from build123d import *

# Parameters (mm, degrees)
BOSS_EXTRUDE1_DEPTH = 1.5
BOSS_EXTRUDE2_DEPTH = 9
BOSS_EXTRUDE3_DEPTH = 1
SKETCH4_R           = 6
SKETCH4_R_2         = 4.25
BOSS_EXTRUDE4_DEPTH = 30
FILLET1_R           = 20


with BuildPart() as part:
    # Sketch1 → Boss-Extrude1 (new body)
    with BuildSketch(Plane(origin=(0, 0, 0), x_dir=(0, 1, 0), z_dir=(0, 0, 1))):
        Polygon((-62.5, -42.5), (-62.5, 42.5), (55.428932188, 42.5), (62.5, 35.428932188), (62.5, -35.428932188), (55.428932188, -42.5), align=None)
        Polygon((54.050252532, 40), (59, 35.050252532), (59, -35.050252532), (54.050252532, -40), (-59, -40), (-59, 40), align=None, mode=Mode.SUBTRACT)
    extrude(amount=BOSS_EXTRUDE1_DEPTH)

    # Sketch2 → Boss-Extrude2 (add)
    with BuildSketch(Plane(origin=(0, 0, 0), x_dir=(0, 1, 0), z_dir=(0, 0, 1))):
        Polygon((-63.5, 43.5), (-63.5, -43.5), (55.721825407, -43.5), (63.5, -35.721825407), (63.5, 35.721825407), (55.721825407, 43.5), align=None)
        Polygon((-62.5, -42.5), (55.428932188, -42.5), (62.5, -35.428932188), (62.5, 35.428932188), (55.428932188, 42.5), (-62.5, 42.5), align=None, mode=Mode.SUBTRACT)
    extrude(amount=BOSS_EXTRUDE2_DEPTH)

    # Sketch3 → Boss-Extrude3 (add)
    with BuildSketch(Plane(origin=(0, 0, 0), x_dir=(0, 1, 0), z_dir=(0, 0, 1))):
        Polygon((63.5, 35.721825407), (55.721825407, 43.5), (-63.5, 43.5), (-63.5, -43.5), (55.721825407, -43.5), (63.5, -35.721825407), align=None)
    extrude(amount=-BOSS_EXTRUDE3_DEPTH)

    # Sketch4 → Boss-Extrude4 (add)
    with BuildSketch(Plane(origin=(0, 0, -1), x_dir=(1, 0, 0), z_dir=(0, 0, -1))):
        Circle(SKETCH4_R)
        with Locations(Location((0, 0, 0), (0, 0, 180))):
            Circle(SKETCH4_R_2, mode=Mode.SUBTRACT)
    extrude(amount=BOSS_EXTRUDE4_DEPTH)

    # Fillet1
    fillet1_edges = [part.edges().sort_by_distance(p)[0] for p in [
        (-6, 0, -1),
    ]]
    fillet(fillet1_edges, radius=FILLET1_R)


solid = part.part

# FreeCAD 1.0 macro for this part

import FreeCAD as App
import Part
import Sketcher

V = App.Vector
Q = App.Units.Quantity


def edges_at(feature, points):
    """Names of the edges that pass closest to the given points."""
    edges = feature.Shape.Edges
    near = lambda p: min(range(len(edges)), key=lambda i: edges[i].distToShape(Part.Vertex(*p))[0])
    return sorted({f"Edge{near(p) + 1}" for p in points})

doc = App.newDocument("Part")
body = doc.addObject("PartDesign::Body", "Body")

# Sketch on XY plane
sketch1 = body.newObject("Sketcher::SketchObject", "Sketch")
sketch1.AttachmentSupport = (doc.getObject("XY_Plane"), [""])
sketch1.MapMode = "FlatFace"
sketch1.addGeometry([
    Part.LineSegment(V(-42, -62, 0), V(42, -62, 0)),  # 0
    Part.LineSegment(V(42, -62, 0), V(42, 55, 0)),  # 1
    Part.LineSegment(V(42, 55, 0), V(35, 62, 0)),  # 2
    Part.LineSegment(V(35, 62, 0), V(-35, 62, 0)),  # 3
    Part.LineSegment(V(-35, 62, 0), V(-42, 55, 0)),  # 4
    Part.LineSegment(V(-42, 55, 0), V(-42, -62, 0)),  # 5
    Part.LineSegment(V(-40, 54, 0), V(-35, 59, 0)),  # 6
    Part.LineSegment(V(-35, 59, 0), V(35, 59, 0)),  # 7
    Part.LineSegment(V(35, 59, 0), V(40, 54, 0)),  # 8
    Part.LineSegment(V(40, 54, 0), V(40, -59, 0)),  # 9
    Part.LineSegment(V(40, -59, 0), V(-40, -59, 0)),  # 10
    Part.LineSegment(V(-40, -59, 0), V(-40, 54, 0)),  # 11
], False)
sketch1.addConstraint([
    Sketcher.Constraint("Coincident", 0, 2, 1, 1),
    Sketcher.Constraint("Coincident", 1, 2, 2, 1),
    Sketcher.Constraint("Coincident", 2, 2, 3, 1),
    Sketcher.Constraint("Coincident", 3, 2, 4, 1),
    Sketcher.Constraint("Coincident", 4, 2, 5, 1),
    Sketcher.Constraint("Coincident", 5, 2, 0, 1),
    Sketcher.Constraint("Coincident", 6, 2, 7, 1),
    Sketcher.Constraint("Coincident", 7, 2, 8, 1),
    Sketcher.Constraint("Coincident", 8, 2, 9, 1),
    Sketcher.Constraint("Coincident", 9, 2, 10, 1),
    Sketcher.Constraint("Coincident", 10, 2, 11, 1),
    Sketcher.Constraint("Coincident", 11, 2, 6, 1),
    Sketcher.Constraint("Horizontal", 0),
    Sketcher.Constraint("Vertical", 1),
    Sketcher.Constraint("Horizontal", 3),
    Sketcher.Constraint("Vertical", 5),
    Sketcher.Constraint("Horizontal", 7),
    Sketcher.Constraint("Vertical", 9),
    Sketcher.Constraint("Horizontal", 10),
    Sketcher.Constraint("Vertical", 11),
    Sketcher.Constraint("Symmetric", 1, 2, 4, 2, -2),
    Sketcher.Constraint("Symmetric", 8, 2, 11, 2, -2),
    Sketcher.Constraint("Perpendicular", 2, 4),
    Sketcher.Constraint("Parallel", 4, 6),
    Sketcher.Constraint("Perpendicular", 6, 8),
    Sketcher.Constraint("Equal", 2, 4),
    Sketcher.Constraint("DistanceX", 0, 1, 0, 2, Q("85 mm")),
    Sketcher.Constraint("DistanceX", 10, 2, 10, 1, Q("80 mm")),
    Sketcher.Constraint("Distance", 2, Q("10 mm")),
    Sketcher.Constraint("Distance", 6, Q("7 mm")),
    Sketcher.Constraint("DistanceY", -1, 1, 6, 2, Q("59 mm")),
    Sketcher.Constraint("DistanceY", 9, 2, -1, 1, Q("59 mm")),
    Sketcher.Constraint("DistanceY", 0, 2, 2, 2, Q("125 mm")),
    Sketcher.Constraint("DistanceY", 0, 2, -1, 1, Q("62.5 mm")),
])
pad1 = body.newObject("PartDesign::Pad", "Pad")
pad1.Profile = sketch1
pad1.Length = 1.5

# Sketch on XY plane
sketch2 = body.newObject("Sketcher::SketchObject", "Sketch001")
sketch2.AttachmentSupport = (doc.getObject("XY_Plane"), [""])
sketch2.MapMode = "FlatFace"
sketch2.addGeometry([
    Part.LineSegment(V(-44, -64, 0), V(44, -64, 0)),  # 0
    Part.LineSegment(V(44, -64, 0), V(44, 56, 0)),  # 1
    Part.LineSegment(V(44, 56, 0), V(36, 64, 0)),  # 2
    Part.LineSegment(V(36, 64, 0), V(-36, 64, 0)),  # 3
    Part.LineSegment(V(-36, 64, 0), V(-44, 56, 0)),  # 4
    Part.LineSegment(V(-44, 56, 0), V(-44, -64, 0)),  # 5
    Part.LineSegment(V(42, 55, 0), V(42, -62, 0)),  # 6
    Part.LineSegment(V(42, -62, 0), V(-42, -62, 0)),  # 7
    Part.LineSegment(V(-42, -62, 0), V(-42, 55, 0)),  # 8
    Part.LineSegment(V(-42, 55, 0), V(-35, 62, 0)),  # 9
    Part.LineSegment(V(-35, 62, 0), V(35, 62, 0)),  # 10
    Part.LineSegment(V(35, 62, 0), V(42, 55, 0)),  # 11
], False)
sketch2.addConstraint([
    Sketcher.Constraint("Coincident", 0, 2, 1, 1),
    Sketcher.Constraint("Coincident", 1, 2, 2, 1),
    Sketcher.Constraint("Coincident", 2, 2, 3, 1),
    Sketcher.Constraint("Coincident", 3, 2, 4, 1),
    Sketcher.Constraint("Coincident", 4, 2, 5, 1),
    Sketcher.Constraint("Coincident", 5, 2, 0, 1),
    Sketcher.Constraint("Coincident", 6, 2, 7, 1),
    Sketcher.Constraint("Coincident", 7, 2, 8, 1),
    Sketcher.Constraint("Coincident", 8, 2, 9, 1),
    Sketcher.Constraint("Coincident", 9, 2, 10, 1),
    Sketcher.Constraint("Coincident", 10, 2, 11, 1),
    Sketcher.Constraint("Coincident", 11, 2, 6, 1),
    Sketcher.Constraint("Horizontal", 0),
    Sketcher.Constraint("Vertical", 1),
    Sketcher.Constraint("Horizontal", 3),
    Sketcher.Constraint("Vertical", 5),
    Sketcher.Constraint("Vertical", 6),
    Sketcher.Constraint("Horizontal", 7),
    Sketcher.Constraint("Vertical", 8),
    Sketcher.Constraint("Horizontal", 10),
    Sketcher.Constraint("Symmetric", 1, 2, 4, 2, -2),
    Sketcher.Constraint("Symmetric", 8, 2, 11, 2, -2),
    Sketcher.Constraint("Perpendicular", 2, 4),
    Sketcher.Constraint("Parallel", 4, 9),
    Sketcher.Constraint("Perpendicular", 9, 11),
    Sketcher.Constraint("Equal", 2, 4),
    Sketcher.Constraint("DistanceX", 0, 1, 0, 2, Q("87 mm")),
    Sketcher.Constraint("DistanceX", 7, 2, 7, 1, Q("85 mm")),
    Sketcher.Constraint("Distance", 2, Q("11 mm")),
    Sketcher.Constraint("Distance", 9, Q("10 mm")),
    Sketcher.Constraint("DistanceY", 0, 2, 2, 2, Q("127 mm")),
    Sketcher.Constraint("DistanceY", 0, 2, 6, 2, Q("1 mm")),
    Sketcher.Constraint("DistanceY", 9, 2, 3, 2, Q("1 mm")),
    Sketcher.Constraint("DistanceY", 0, 2, -1, 1, Q("63.5 mm")),
])
pad2 = body.newObject("PartDesign::Pad", "Pad001")
pad2.Profile = sketch2
pad2.Length = 9

# Sketch on XY plane
sketch3 = body.newObject("Sketcher::SketchObject", "Sketch002")
sketch3.AttachmentSupport = (doc.getObject("XY_Plane"), [""])
sketch3.MapMode = "FlatFace"
sketch3.addGeometry([
    Part.LineSegment(V(-36, 64, 0), V(-44, 56, 0)),  # 0
    Part.LineSegment(V(-44, 56, 0), V(-44, -64, 0)),  # 1
    Part.LineSegment(V(-44, -64, 0), V(44, -64, 0)),  # 2
    Part.LineSegment(V(44, -64, 0), V(44, 56, 0)),  # 3
    Part.LineSegment(V(44, 56, 0), V(36, 64, 0)),  # 4
    Part.LineSegment(V(36, 64, 0), V(-36, 64, 0)),  # 5
], False)
sketch3.addConstraint([
    Sketcher.Constraint("Coincident", 0, 2, 1, 1),
    Sketcher.Constraint("Coincident", 1, 2, 2, 1),
    Sketcher.Constraint("Coincident", 2, 2, 3, 1),
    Sketcher.Constraint("Coincident", 3, 2, 4, 1),
    Sketcher.Constraint("Coincident", 4, 2, 5, 1),
    Sketcher.Constraint("Coincident", 5, 2, 0, 1),
    Sketcher.Constraint("Vertical", 1),
    Sketcher.Constraint("Horizontal", 2),
    Sketcher.Constraint("Vertical", 3),
    Sketcher.Constraint("Horizontal", 5),
    Sketcher.Constraint("Symmetric", 0, 2, 3, 2, -2),
    Sketcher.Constraint("Perpendicular", 0, 4),
    Sketcher.Constraint("Equal", 0, 4),
    Sketcher.Constraint("DistanceX", 2, 1, 2, 2, Q("87 mm")),
    Sketcher.Constraint("Distance", 0, Q("11 mm")),
    Sketcher.Constraint("DistanceY", 2, 2, 4, 2, Q("127 mm")),
    Sketcher.Constraint("DistanceY", 1, 2, -1, 1, Q("63.5 mm")),
])
pad3 = body.newObject("PartDesign::Pad", "Pad002")
pad3.Profile = sketch3
pad3.Length = 1
pad3.Reversed = True

# Sketch on XY plane
sketch4 = body.newObject("Sketcher::SketchObject", "Sketch003")
sketch4.AttachmentSupport = (doc.getObject("XY_Plane"), [""])
sketch4.MapMode = "FlatFace"
sketch4.AttachmentOffset = App.Placement(V(0, 0, -1), App.Rotation())
sketch4.addGeometry([
    Part.Circle(V(0, 0, 0), V(0, 0, 1), 6),
    Part.Circle(V(0, 0, 0), V(0, 0, 1), 4.2),
], False)
sketch4.addConstraint([
    Sketcher.Constraint("Coincident", 0, 3, -1, 1),
    Sketcher.Constraint("Coincident", 1, 3, -1, 1),
    Sketcher.Constraint("Diameter", 0, Q("12 mm")),
    Sketcher.Constraint("Diameter", 1, Q("8.5 mm")),
])
pad4 = body.newObject("PartDesign::Pad", "Pad003")
pad4.Profile = sketch4
pad4.Length = 30
pad4.Reversed = True
doc.recompute()

fillet = body.newObject("PartDesign::Fillet", "Fillet")
fillet.Base = (pad4, edges_at(pad4, [(-6, 0, -1)]))
fillet.Radius = 20

doc.recompute()
